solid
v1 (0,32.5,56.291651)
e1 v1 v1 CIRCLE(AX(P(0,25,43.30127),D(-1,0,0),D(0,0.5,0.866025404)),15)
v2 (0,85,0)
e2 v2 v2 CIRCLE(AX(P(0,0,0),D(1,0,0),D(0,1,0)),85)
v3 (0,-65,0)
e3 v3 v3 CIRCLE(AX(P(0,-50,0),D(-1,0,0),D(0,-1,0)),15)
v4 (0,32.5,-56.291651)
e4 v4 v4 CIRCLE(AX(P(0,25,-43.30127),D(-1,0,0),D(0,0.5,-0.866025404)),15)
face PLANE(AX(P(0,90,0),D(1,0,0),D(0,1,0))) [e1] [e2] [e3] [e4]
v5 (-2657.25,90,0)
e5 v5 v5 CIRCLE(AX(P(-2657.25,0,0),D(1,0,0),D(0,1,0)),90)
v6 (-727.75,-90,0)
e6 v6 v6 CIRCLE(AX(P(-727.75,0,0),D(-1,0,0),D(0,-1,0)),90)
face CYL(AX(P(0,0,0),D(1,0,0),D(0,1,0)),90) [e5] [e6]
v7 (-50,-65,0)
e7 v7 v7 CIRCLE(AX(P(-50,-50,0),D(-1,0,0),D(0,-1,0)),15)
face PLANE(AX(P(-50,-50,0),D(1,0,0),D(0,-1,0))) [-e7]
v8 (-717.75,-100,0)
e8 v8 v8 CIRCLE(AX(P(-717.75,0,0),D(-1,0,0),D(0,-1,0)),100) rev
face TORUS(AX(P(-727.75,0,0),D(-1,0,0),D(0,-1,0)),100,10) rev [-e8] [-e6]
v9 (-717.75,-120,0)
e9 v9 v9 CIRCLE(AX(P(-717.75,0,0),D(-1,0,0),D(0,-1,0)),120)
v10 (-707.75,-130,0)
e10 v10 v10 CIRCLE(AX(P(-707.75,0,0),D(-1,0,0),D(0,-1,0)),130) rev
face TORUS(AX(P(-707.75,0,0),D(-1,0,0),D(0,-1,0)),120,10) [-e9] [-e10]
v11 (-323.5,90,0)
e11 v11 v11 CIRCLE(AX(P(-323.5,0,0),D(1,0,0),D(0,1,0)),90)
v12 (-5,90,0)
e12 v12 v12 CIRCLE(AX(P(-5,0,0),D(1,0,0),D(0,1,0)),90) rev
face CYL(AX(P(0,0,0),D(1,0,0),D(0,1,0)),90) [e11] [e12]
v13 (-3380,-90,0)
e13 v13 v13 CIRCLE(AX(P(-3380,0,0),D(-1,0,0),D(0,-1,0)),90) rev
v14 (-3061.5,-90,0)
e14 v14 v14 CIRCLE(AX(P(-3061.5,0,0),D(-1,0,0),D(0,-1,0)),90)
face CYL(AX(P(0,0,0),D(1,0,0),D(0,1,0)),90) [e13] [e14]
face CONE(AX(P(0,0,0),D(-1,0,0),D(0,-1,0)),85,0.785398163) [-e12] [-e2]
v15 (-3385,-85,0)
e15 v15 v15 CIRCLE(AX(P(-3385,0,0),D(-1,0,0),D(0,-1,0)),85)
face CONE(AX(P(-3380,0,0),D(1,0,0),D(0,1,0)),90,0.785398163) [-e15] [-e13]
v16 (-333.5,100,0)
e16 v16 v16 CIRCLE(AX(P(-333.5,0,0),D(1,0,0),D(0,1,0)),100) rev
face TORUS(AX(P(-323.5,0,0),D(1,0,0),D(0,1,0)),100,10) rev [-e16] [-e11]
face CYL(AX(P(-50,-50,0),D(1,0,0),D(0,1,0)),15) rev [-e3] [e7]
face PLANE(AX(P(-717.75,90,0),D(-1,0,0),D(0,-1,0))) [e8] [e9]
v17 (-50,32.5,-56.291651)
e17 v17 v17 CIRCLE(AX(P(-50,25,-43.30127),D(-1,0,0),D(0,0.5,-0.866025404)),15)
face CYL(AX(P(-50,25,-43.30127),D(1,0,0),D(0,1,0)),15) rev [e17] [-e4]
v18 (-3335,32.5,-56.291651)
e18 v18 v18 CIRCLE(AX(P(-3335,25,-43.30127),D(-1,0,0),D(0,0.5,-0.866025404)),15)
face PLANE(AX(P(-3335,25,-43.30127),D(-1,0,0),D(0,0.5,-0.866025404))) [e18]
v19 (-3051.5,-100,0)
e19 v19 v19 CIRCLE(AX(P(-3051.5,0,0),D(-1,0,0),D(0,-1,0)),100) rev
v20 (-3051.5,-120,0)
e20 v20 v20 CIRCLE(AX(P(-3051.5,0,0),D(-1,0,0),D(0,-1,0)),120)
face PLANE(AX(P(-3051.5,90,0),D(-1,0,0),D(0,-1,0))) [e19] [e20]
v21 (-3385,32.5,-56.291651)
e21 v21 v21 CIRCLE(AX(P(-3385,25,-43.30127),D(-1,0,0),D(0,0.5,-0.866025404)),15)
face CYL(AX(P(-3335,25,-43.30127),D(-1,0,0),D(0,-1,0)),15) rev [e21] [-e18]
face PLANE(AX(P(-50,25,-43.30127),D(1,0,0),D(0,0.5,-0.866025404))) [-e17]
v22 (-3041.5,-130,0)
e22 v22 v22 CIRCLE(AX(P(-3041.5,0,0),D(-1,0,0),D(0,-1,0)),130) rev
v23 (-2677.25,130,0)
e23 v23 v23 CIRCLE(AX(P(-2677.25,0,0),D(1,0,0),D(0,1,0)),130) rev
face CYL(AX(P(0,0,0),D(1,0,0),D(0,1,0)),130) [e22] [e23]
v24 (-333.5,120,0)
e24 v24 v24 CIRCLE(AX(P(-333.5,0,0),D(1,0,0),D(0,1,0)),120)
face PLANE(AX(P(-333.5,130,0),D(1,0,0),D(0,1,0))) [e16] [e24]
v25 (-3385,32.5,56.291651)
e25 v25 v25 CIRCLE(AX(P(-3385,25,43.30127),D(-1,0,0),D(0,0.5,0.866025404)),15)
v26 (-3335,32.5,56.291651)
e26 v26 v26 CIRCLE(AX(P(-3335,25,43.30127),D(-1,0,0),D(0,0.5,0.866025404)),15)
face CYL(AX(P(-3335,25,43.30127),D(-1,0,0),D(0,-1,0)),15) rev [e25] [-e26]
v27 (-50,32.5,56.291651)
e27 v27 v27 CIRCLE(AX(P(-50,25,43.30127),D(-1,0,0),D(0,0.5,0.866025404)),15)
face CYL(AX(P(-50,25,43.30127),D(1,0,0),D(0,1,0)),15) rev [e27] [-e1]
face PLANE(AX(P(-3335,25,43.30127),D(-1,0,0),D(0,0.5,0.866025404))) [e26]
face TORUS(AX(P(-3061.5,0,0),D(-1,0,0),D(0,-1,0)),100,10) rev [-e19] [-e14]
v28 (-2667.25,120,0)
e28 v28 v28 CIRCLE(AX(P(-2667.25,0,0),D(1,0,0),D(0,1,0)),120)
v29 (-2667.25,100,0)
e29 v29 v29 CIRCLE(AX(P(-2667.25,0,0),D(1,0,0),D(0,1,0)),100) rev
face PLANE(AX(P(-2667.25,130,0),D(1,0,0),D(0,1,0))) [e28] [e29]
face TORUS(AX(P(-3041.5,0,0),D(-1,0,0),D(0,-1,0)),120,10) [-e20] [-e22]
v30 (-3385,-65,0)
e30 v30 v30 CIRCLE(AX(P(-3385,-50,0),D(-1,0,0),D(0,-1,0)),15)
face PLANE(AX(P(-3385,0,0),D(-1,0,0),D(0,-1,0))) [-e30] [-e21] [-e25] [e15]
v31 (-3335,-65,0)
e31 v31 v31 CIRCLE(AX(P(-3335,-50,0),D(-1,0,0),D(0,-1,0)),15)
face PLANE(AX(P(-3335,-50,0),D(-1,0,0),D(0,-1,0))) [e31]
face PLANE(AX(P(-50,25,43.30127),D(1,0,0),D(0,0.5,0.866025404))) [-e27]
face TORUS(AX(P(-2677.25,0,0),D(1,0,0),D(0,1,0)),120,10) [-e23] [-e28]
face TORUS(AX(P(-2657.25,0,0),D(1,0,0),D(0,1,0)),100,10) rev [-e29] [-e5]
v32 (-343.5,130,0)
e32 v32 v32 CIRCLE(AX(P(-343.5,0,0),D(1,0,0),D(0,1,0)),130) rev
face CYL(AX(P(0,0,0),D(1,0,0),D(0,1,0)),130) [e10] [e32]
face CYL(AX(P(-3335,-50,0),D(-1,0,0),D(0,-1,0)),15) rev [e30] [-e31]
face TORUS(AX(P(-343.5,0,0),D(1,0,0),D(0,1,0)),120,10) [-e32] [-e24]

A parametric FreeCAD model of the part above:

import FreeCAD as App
import Part
import Sketcher
from FreeCAD import Vector


def edges_at(feature, points):
    """Names of the edges that pass closest to the given points."""
    edges = feature.Shape.Edges
    near = lambda p: min(range(len(edges)), key=lambda i: edges[i].distToShape(Part.Vertex(*p))[0])
    return sorted({f"Edge{near(p) + 1}" for p in points})

doc = App.newDocument("Part")
body = doc.addObject("PartDesign::Body", "Body")

# Sketch on XY plane
sketch1 = doc.addObject("Sketcher::SketchObject", "Sketch")
body.addObject(sketch1)
sketch1.AttachmentSupport = (doc.XY_Plane, [""])
sketch1.MapMode = "FlatFace"
sketch1.addGeometry(Part.LineSegment(Vector(-3385, 0, 0), Vector(0, 0, 0)), False)
sketch1.addGeometry(Part.LineSegment(Vector(0, 0, 0), Vector(0, 90, 0)), False)
sketch1.addGeometry(Part.LineSegment(Vector(0, 90, 0), Vector(-334, 90, 0)), False)
sketch1.addGeometry(Part.LineSegment(Vector(-334, 90, 0), Vector(-334, 130, 0)), False)
sketch1.addGeometry(Part.LineSegment(Vector(-334, 130, 0), Vector(-718, 130, 0)), False)
sketch1.addGeometry(Part.LineSegment(Vector(-718, 130, 0), Vector(-718, 90, 0)), False)
sketch1.addGeometry(Part.LineSegment(Vector(-718, 90, 0), Vector(-2667, 90, 0)), False)
sketch1.addGeometry(Part.LineSegment(Vector(-2667, 90, 0), Vector(-2667, 130, 0)), False)
sketch1.addGeometry(Part.LineSegment(Vector(-2667, 130, 0), Vector(-3052, 130, 0)), False)
sketch1.addGeometry(Part.LineSegment(Vector(-3052, 130, 0), Vector(-3052, 90, 0)), False)
sketch1.addGeometry(Part.LineSegment(Vector(-3052, 90, 0), Vector(-3385, 90, 0)), False)
sketch1.addGeometry(Part.LineSegment(Vector(-3385, 90, 0), Vector(-3385, 0, 0)), False)
sketch1.addConstraint(Sketcher.Constraint("Coincident", 0, 2, 1, 1))
sketch1.addConstraint(Sketcher.Constraint("Coincident", 1, 2, 2, 1))
sketch1.addConstraint(Sketcher.Constraint("Coincident", 2, 2, 3, 1))
sketch1.addConstraint(Sketcher.Constraint("Coincident", 3, 2, 4, 1))
sketch1.addConstraint(Sketcher.Constraint("Coincident", 4, 2, 5, 1))
sketch1.addConstraint(Sketcher.Constraint("Coincident", 5, 2, 6, 1))
sketch1.addConstraint(Sketcher.Constraint("Coincident", 6, 2, 7, 1))
sketch1.addConstraint(Sketcher.Constraint("Coincident", 7, 2, 8, 1))
sketch1.addConstraint(Sketcher.Constraint("Coincident", 8, 2, 9, 1))
sketch1.addConstraint(Sketcher.Constraint("Coincident", 9, 2, 10, 1))
sketch1.addConstraint(Sketcher.Constraint("Coincident", 10, 2, 11, 1))
sketch1.addConstraint(Sketcher.Constraint("Coincident", 11, 2, 0, 1))
sketch1.addConstraint(Sketcher.Constraint("Horizontal", 0))
sketch1.addConstraint(Sketcher.Constraint("Vertical", 1))
sketch1.addConstraint(Sketcher.Constraint("Horizontal", 2))
sketch1.addConstraint(Sketcher.Constraint("Vertical", 3))
sketch1.addConstraint(Sketcher.Constraint("Horizontal", 4))
sketch1.addConstraint(Sketcher.Constraint("Vertical", 5))
sketch1.addConstraint(Sketcher.Constraint("Horizontal", 6))
sketch1.addConstraint(Sketcher.Constraint("Vertical", 7))
sketch1.addConstraint(Sketcher.Constraint("Horizontal", 8))
sketch1.addConstraint(Sketcher.Constraint("Vertical", 9))
sketch1.addConstraint(Sketcher.Constraint("Horizontal", 10))
sketch1.addConstraint(Sketcher.Constraint("Vertical", 11))
sketch1.addConstraint(Sketcher.Constraint("Coincident", 0, 2, -1, 1))
sketch1.addConstraint(Sketcher.Constraint("Horizontal", 2, 2, 5, 2))
sketch1.addConstraint(Sketcher.Constraint("Horizontal", 4, 2, 7, 2))
sketch1.addConstraint(Sketcher.Constraint("Horizontal", 6, 2, 9, 2))
sketch1.addConstraint(Sketcher.Constraint("Equal", 4, 8))
sketch1.addConstraint(Sketcher.Constraint("Equal", 2, 10))
sketch1.addConstraint(Sketcher.Constraint("DistanceX", 0, 1, 0, 2, 3385.0))
sketch1.addConstraint(Sketcher.Constraint("DistanceY", 1, 1, 1, 2, 90.0))
sketch1.addConstraint(Sketcher.Constraint("DistanceY", 3, 1, 3, 2, 40.0))
sketch1.addConstraint(Sketcher.Constraint("DistanceX", 2, 2, 2, 1, 333.5))
sketch1.addConstraint(Sketcher.Constraint("DistanceX", 6, 2, 6, 1, 1949.5))
revolution = doc.addObject("PartDesign::Revolution", "Revolution")
body.addObject(revolution)
revolution.Profile = sketch1
revolution.ReferenceAxis = (sketch1, ["H_Axis"])
revolution.Angle = 360

# Sketch on YZ plane
sketch2 = doc.addObject("Sketcher::SketchObject", "Sketch001")
body.addObject(sketch2)
sketch2.AttachmentSupport = (doc.YZ_Plane, [""])
sketch2.MapMode = "FlatFace"
sketch2.AttachmentOffset = App.Placement(Vector(0, 0, -3385), App.Rotation())
sketch2.addGeometry(Part.Circle(Vector(-50, 0, 0), Vector(0, 0, 1), 15), False)
sketch2.addConstraint(Sketcher.Constraint("PointOnObject", 0, 3, -1))
sketch2.addConstraint(Sketcher.Constraint("Diameter", 0, 30.0))
sketch2.addConstraint(Sketcher.Constraint("DistanceX", 0, 3, -1, 1, 50.0))
pocket1 = doc.addObject("PartDesign::Pocket", "Pocket")
body.addObject(pocket1)
pocket1.Profile = sketch2
pocket1.Length = 50
pocket1.Reversed = True
doc.recompute()

polarpattern = doc.addObject("PartDesign::PolarPattern", "PolarPattern")
body.addObject(polarpattern)
polarpattern.Originals = [pocket1]
polarpattern.Axis = (doc.X_Axis, [""])
polarpattern.Angle = 360
polarpattern.Occurrences = 3
body.Tip = polarpattern
doc.recompute()

datumplane = doc.addObject("PartDesign::Plane", "DatumPlane")
body.addObject(datumplane)
datumplane.AttachmentSupport = (doc.YZ_Plane, [""])
datumplane.MapMode = "FlatFace"
datumplane.AttachmentOffset = App.Placement(Vector(0, 0, -1692.5), App.Rotation())
mirrored = doc.addObject("PartDesign::Mirrored", "Mirrored")
body.addObject(mirrored)
mirrored.Originals = [pocket1]
mirrored.MirrorPlane = (datumplane, [""])
body.Tip = mirrored

# Sketch on YZ plane
sketch3 = doc.addObject("Sketcher::SketchObject", "Sketch002")
body.addObject(sketch3)
sketch3.AttachmentSupport = (doc.YZ_Plane, [""])
sketch3.MapMode = "FlatFace"
sketch3.addGeometry(Part.Circle(Vector(25, -43, 0), Vector(0, 0, 1), 15), False)
sketch3.addConstraint(Sketcher.Constraint("Diameter", 0, 30.0))
sketch3.addConstraint(Sketcher.Constraint("DistanceX", -1, 1, 0, 3, 25.0))
sketch3.addConstraint(Sketcher.Constraint("DistanceY", 0, 3, -1, 1, 43.30127))
pocket2 = doc.addObject("PartDesign::Pocket", "Pocket001")
body.addObject(pocket2)
pocket2.Profile = sketch3
pocket2.Length = 50

# Sketch on YZ plane
sketch4 = doc.addObject("Sketcher::SketchObject", "Sketch003")
body.addObject(sketch4)
sketch4.AttachmentSupport = (doc.YZ_Plane, [""])
sketch4.MapMode = "FlatFace"
sketch4.addGeometry(Part.Circle(Vector(25, 43, 0), Vector(0, 0, 1), 15), False)
sketch4.addConstraint(Sketcher.Constraint("Diameter", 0, 30.0))
sketch4.addConstraint(Sketcher.Constraint("DistanceX", -1, 1, 0, 3, 25.0))
sketch4.addConstraint(Sketcher.Constraint("DistanceY", -1, 1, 0, 3, 43.30127))
pocket3 = doc.addObject("PartDesign::Pocket", "Pocket002")
body.addObject(pocket3)
pocket3.Profile = sketch4
pocket3.Length = 50
doc.recompute()

fillet = doc.addObject("PartDesign::Fillet", "Fillet")
body.addObject(fillet)
fillet.Base = (pocket3, edges_at(pocket3, [
    (-717.75, -90, 0),
    (-2667.25, -90, 0),
    (-2667.25, -130, 0),
    (-3051.5, -130, 0),
    (-3051.5, -90, 0),
    (-333.5, -90, 0),
    (-333.5, -130, 0),
    (-717.75, -130, 0),
]))
fillet.Radius = 10
doc.recompute()

chamfer = doc.addObject("PartDesign::Chamfer", "Chamfer")
body.addObject(chamfer)
chamfer.Base = (fillet, edges_at(fillet, [(-3385, -90, 0), (0, -90, 0)]))
chamfer.Size = 5

doc.recompute()
